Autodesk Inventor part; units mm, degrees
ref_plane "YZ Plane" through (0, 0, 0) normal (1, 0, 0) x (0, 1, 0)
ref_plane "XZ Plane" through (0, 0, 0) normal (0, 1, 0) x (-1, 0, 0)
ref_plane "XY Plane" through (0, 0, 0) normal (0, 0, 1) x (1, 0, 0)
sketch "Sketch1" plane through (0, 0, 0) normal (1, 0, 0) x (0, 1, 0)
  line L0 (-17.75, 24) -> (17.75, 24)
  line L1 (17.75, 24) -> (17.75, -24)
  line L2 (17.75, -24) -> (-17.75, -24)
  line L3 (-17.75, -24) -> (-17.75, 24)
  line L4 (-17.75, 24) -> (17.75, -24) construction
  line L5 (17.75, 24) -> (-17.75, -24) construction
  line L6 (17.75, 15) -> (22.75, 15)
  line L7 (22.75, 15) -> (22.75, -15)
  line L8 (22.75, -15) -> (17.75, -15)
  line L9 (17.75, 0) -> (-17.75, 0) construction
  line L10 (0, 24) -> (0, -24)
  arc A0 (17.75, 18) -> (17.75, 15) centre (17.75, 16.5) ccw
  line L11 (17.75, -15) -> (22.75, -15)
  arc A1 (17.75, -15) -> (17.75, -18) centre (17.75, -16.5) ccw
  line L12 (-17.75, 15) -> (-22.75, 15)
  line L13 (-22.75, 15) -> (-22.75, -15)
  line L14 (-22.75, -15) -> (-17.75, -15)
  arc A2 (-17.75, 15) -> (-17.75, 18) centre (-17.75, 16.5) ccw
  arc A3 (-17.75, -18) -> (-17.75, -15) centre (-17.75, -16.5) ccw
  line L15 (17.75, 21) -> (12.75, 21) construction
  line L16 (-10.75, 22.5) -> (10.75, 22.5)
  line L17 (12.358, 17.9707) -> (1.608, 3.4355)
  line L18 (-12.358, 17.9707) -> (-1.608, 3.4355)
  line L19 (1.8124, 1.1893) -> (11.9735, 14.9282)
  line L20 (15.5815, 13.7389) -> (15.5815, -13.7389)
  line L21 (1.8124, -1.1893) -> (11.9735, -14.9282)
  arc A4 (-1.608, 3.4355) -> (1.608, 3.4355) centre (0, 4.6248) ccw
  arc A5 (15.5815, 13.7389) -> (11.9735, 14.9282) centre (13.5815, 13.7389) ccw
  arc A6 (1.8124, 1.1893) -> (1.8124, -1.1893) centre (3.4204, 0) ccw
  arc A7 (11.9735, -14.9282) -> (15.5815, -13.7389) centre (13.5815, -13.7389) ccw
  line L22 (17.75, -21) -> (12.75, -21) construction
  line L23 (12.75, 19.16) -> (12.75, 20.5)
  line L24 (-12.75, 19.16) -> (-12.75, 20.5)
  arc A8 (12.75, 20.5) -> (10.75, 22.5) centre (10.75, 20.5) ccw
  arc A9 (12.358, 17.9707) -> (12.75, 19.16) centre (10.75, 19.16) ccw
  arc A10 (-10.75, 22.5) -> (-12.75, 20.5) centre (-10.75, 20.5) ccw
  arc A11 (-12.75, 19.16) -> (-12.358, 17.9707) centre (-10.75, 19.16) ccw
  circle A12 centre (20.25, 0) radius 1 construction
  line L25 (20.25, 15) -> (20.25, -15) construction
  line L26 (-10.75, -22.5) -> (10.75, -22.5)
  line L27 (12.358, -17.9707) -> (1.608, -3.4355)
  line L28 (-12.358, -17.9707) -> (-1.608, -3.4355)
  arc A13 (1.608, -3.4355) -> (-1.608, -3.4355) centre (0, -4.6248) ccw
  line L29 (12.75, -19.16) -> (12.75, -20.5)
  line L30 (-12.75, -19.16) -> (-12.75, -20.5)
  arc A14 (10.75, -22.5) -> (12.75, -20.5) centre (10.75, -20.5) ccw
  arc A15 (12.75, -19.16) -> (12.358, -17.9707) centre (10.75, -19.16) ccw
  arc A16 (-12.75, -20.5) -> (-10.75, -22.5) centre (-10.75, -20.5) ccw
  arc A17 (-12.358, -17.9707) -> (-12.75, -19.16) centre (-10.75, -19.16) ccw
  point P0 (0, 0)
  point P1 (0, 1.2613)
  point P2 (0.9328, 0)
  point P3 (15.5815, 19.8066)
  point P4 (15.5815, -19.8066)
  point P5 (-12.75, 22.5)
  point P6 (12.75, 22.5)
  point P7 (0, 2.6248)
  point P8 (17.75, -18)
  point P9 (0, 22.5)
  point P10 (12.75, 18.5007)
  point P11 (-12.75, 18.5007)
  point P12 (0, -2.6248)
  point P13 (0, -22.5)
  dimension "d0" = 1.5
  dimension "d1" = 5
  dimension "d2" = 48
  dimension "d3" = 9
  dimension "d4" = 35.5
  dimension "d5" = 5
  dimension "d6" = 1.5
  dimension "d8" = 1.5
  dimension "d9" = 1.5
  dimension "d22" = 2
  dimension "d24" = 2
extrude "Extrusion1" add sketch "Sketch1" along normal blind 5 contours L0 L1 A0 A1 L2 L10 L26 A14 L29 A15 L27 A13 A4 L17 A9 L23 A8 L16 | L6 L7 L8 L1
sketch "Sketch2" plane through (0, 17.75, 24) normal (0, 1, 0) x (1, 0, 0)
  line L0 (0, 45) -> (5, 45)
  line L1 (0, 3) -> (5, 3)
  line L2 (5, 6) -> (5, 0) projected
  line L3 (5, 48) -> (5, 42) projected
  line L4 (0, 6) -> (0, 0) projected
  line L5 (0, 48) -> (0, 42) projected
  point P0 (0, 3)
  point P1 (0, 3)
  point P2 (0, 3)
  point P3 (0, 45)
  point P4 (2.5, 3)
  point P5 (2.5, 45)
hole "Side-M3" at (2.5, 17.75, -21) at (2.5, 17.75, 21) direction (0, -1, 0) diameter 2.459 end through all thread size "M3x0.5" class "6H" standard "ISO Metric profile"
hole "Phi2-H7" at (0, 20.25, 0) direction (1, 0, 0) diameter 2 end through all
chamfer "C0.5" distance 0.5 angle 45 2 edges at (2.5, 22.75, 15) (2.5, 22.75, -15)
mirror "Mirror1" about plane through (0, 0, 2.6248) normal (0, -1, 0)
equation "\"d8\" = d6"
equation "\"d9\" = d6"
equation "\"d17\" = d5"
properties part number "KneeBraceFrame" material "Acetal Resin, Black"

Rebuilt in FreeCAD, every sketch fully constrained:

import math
import FreeCAD as App
import Part
import Sketcher
Q = App.Units.Quantity


def edges_at(feature, points):
    """Names of the edges that pass closest to the given points."""
    edges = feature.Shape.Edges
    near = lambda p: min(range(len(edges)), key=lambda i: edges[i].distToShape(Part.Vertex(*p))[0])
    return sorted({f"Edge{near(p) + 1}" for p in points})

doc = App.newDocument("Part")
body = doc.addObject("PartDesign::Body", "Body")

# Sketch on YZ plane
sketch1 = body.newObject("Sketcher::SketchObject", "Sketch")
sketch1.AttachmentSupport = (doc.getObject("YZ_Plane"), [""])
sketch1.MapMode = "FlatFace"
sketch1.addGeometry(Part.LineSegment(App.Vector(17.8, 24, 0), App.Vector(0, 24, 0)), False)
sketch1.addGeometry(Part.LineSegment(App.Vector(0, 24, 0), App.Vector(0, 22.5, 0)), False)
sketch1.addGeometry(Part.LineSegment(App.Vector(0, 22.5, 0), App.Vector(10.8, 22.5, 0)), False)
sketch1.addGeometry(Part.ArcOfCircle(Part.Circle(App.Vector(10.8, 20.5, 0), App.Vector(0, 0, 1), 2), math.radians(0), math.radians(90)), False)
sketch1.addGeometry(Part.LineSegment(App.Vector(12.8, 20.5, 0), App.Vector(12.8, 19.2, 0)), False)
sketch1.addGeometry(Part.ArcOfCircle(Part.Circle(App.Vector(10.8, 19.2, 0), App.Vector(0, 0, 1), 2), math.radians(-36), math.radians(0)), False)
sketch1.addGeometry(Part.LineSegment(App.Vector(12.4, 18, 0), App.Vector(1.6, 3.4, 0)), False)
sketch1.addGeometry(Part.ArcOfCircle(Part.Circle(App.Vector(0, 4.6, 0), App.Vector(0, 0, 1), 2), math.radians(-90), math.radians(-36)), False)
sketch1.addGeometry(Part.LineSegment(App.Vector(0, 2.6, 0), App.Vector(0, -2.6, 0)), False)
sketch1.addGeometry(Part.ArcOfCircle(Part.Circle(App.Vector(0, -4.6, 0), App.Vector(0, 0, 1), 2), math.radians(36), math.radians(90)), False)
sketch1.addGeometry(Part.LineSegment(App.Vector(1.6, -3.4, 0), App.Vector(12.4, -18, 0)), False)
sketch1.addGeometry(Part.ArcOfCircle(Part.Circle(App.Vector(10.8, -19.2, 0), App.Vector(0, 0, 1), 2), math.radians(0), math.radians(36)), False)
sketch1.addGeometry(Part.LineSegment(App.Vector(12.8, -19.2, 0), App.Vector(12.8, -20.5, 0)), False)
sketch1.addGeometry(Part.ArcOfCircle(Part.Circle(App.Vector(10.8, -20.5, 0), App.Vector(0, 0, 1), 2), math.radians(-90), math.radians(0)), False)
sketch1.addGeometry(Part.LineSegment(App.Vector(10.8, -22.5, 0), App.Vector(0, -22.5, 0)), False)
sketch1.addGeometry(Part.LineSegment(App.Vector(0, -22.5, 0), App.Vector(0, -24, 0)), False)
sketch1.addGeometry(Part.LineSegment(App.Vector(0, -24, 0), App.Vector(17.8, -24, 0)), False)
sketch1.addGeometry(Part.LineSegment(App.Vector(17.8, -24, 0), App.Vector(17.8, -18, 0)), False)
sketch1.addGeometry(Part.ArcOfCircle(Part.Circle(App.Vector(17.8, -16.5, 0), App.Vector(0, 0, 1), 1.5), math.radians(90), math.radians(270)), False)
sketch1.addGeometry(Part.LineSegment(App.Vector(17.8, -15, 0), App.Vector(22.8, -15, 0)), False)
sketch1.addGeometry(Part.LineSegment(App.Vector(22.8, -15, 0), App.Vector(22.8, 15, 0)), False)
sketch1.addGeometry(Part.LineSegment(App.Vector(22.8, 15, 0), App.Vector(17.8, 15, 0)), False)
sketch1.addGeometry(Part.ArcOfCircle(Part.Circle(App.Vector(17.8, 16.5, 0), App.Vector(0, 0, 1), 1.5), math.radians(90), math.radians(270)), False)
sketch1.addGeometry(Part.LineSegment(App.Vector(17.8, 18, 0), App.Vector(17.8, 24, 0)), False)
sketch1.addGeometry(Part.ArcOfCircle(Part.Circle(App.Vector(3.4, 0, 0), App.Vector(0, 0, 1), 2), math.radians(144), math.radians(216)), False)
sketch1.addGeometry(Part.LineSegment(App.Vector(1.8, 1.2, 0), App.Vector(12, 14.9, 0)), False)
sketch1.addGeometry(Part.ArcOfCircle(Part.Circle(App.Vector(13.6, 13.7, 0), App.Vector(0, 0, 1), 2), math.radians(0), math.radians(144)), False)
sketch1.addGeometry(Part.LineSegment(App.Vector(15.6, 13.7, 0), App.Vector(15.6, -13.7, 0)), False)
sketch1.addGeometry(Part.ArcOfCircle(Part.Circle(App.Vector(13.6, -13.7, 0), App.Vector(0, 0, 1), 2), math.radians(-144), math.radians(0)), False)
sketch1.addGeometry(Part.LineSegment(App.Vector(12, -14.9, 0), App.Vector(1.8, -1.2, 0)), False)
sketch1.addConstraint(Sketcher.Constraint("Coincident", 0, 2, 1, 1))
sketch1.addConstraint(Sketcher.Constraint("Coincident", 1, 2, 2, 1))
sketch1.addConstraint(Sketcher.Constraint("Tangent", 2, 2, 3, 2))
sketch1.addConstraint(Sketcher.Constraint("Tangent", 3, 1, 4, 1))
sketch1.addConstraint(Sketcher.Constraint("Tangent", 4, 2, 5, 2))
sketch1.addConstraint(Sketcher.Constraint("Tangent", 5, 1, 6, 1))
sketch1.addConstraint(Sketcher.Constraint("Tangent", 6, 2, 7, 2))
sketch1.addConstraint(Sketcher.Constraint("Coincident", 7, 1, 8, 1))
sketch1.addConstraint(Sketcher.Constraint("Coincident", 8, 2, 9, 2))
sketch1.addConstraint(Sketcher.Constraint("Tangent", 9, 1, 10, 1))
sketch1.addConstraint(Sketcher.Constraint("Tangent", 10, 2, 11, 2))
sketch1.addConstraint(Sketcher.Constraint("Tangent", 11, 1, 12, 1))
sketch1.addConstraint(Sketcher.Constraint("Tangent", 12, 2, 13, 2))
sketch1.addConstraint(Sketcher.Constraint("Tangent", 13, 1, 14, 1))
sketch1.addConstraint(Sketcher.Constraint("Coincident", 14, 2, 15, 1))
sketch1.addConstraint(Sketcher.Constraint("Coincident", 15, 2, 16, 1))
sketch1.addConstraint(Sketcher.Constraint("Coincident", 16, 2, 17, 1))
sketch1.addConstraint(Sketcher.Constraint("Coincident", 17, 2, 18, 2))
sketch1.addConstraint(Sketcher.Constraint("Tangent", 18, 1, 19, 1))
sketch1.addConstraint(Sketcher.Constraint("Coincident", 19, 2, 20, 1))
sketch1.addConstraint(Sketcher.Constraint("Coincident", 20, 2, 21, 1))
sketch1.addConstraint(Sketcher.Constraint("Tangent", 21, 2, 22, 2))
sketch1.addConstraint(Sketcher.Constraint("Coincident", 22, 1, 23, 1))
sketch1.addConstraint(Sketcher.Constraint("Coincident", 23, 2, 0, 1))
sketch1.addConstraint(Sketcher.Constraint("Tangent", 24, 1, 25, 1))
sketch1.addConstraint(Sketcher.Constraint("Tangent", 25, 2, 26, 2))
sketch1.addConstraint(Sketcher.Constraint("Tangent", 26, 1, 27, 1))
sketch1.addConstraint(Sketcher.Constraint("Tangent", 27, 2, 28, 2))
sketch1.addConstraint(Sketcher.Constraint("Tangent", 28, 1, 29, 1))
sketch1.addConstraint(Sketcher.Constraint("Tangent", 29, 2, 24, 2))
sketch1.addConstraint(Sketcher.Constraint("Horizontal", 0))
sketch1.addConstraint(Sketcher.Constraint("Vertical", 1))
sketch1.addConstraint(Sketcher.Constraint("Horizontal", 2))
sketch1.addConstraint(Sketcher.Constraint("Vertical", 4))
sketch1.addConstraint(Sketcher.Constraint("Vertical", 8))
sketch1.addConstraint(Sketcher.Constraint("Vertical", 12))
sketch1.addConstraint(Sketcher.Constraint("Horizontal", 14))
sketch1.addConstraint(Sketcher.Constraint("Vertical", 15))
sketch1.addConstraint(Sketcher.Constraint("Horizontal", 16))
sketch1.addConstraint(Sketcher.Constraint("Vertical", 17))
sketch1.addConstraint(Sketcher.Constraint("Horizontal", 19))
sketch1.addConstraint(Sketcher.Constraint("Vertical", 20))
sketch1.addConstraint(Sketcher.Constraint("Horizontal", 21))
sketch1.addConstraint(Sketcher.Constraint("Vertical", 23))
sketch1.addConstraint(Sketcher.Constraint("Vertical", 27))
sketch1.addConstraint(Sketcher.Constraint("Equal", 3, 5))
sketch1.addConstraint(Sketcher.Constraint("Equal", 5, 7))
sketch1.addConstraint(Sketcher.Constraint("Equal", 7, 9))
sketch1.addConstraint(Sketcher.Constraint("Equal", 9, 11))
sketch1.addConstraint(Sketcher.Constraint("Equal", 11, 13))
sketch1.addConstraint(Sketcher.Constraint("Equal", 18, 22))
sketch1.addConstraint(Sketcher.Constraint("Equal", 13, 24))
sketch1.addConstraint(Sketcher.Constraint("Equal", 24, 26))
sketch1.addConstraint(Sketcher.Constraint("Equal", 26, 28))
sketch1.addConstraint(Sketcher.Constraint("Symmetric", 7, 3, 9, 3, -1, 1))
sketch1.addConstraint(Sketcher.Constraint("Symmetric", 1, 2, 14, 2, -1, 1))
sketch1.addConstraint(Sketcher.Constraint("Symmetric", 5, 3, 11, 3, -1))
sketch1.addConstraint(Sketcher.Constraint("Symmetric", 18, 3, 22, 3, -1))
sketch1.addConstraint(Sketcher.Constraint("Symmetric", 0, 2, 15, 2, -1))
sketch1.addConstraint(Sketcher.Constraint("Symmetric", 25, 2, 28, 1, -1))
sketch1.addConstraint(Sketcher.Constraint("PointOnObject", 7, 3, -2))
sketch1.addConstraint(Sketcher.Constraint("PointOnObject", 7, 1, -2))
sketch1.addConstraint(Sketcher.Constraint("Parallel", 6, 25))
sketch1.addConstraint(Sketcher.Constraint("Vertical", 22, 3, 16, 2))
sketch1.addConstraint(Sketcher.Constraint("Vertical", 21, 2, 22, 1))
sketch1.addConstraint(Sketcher.Constraint("Radius", 3, Q("2 mm")))
sketch1.addConstraint(Sketcher.Constraint("Radius", 18, Q("1.5 mm")))
sketch1.addConstraint(Sketcher.Constraint("DistanceX", 19, 1, 19, 2, Q("5 mm")))
sketch1.addConstraint(Sketcher.Constraint("DistanceY", 1, 2, 1, 1, Q("1.5 mm")))
sketch1.addConstraint(Sketcher.Constraint("DistanceX", 3, 1, 22, 3, Q("5 mm")))
sketch1.addConstraint(Sketcher.Constraint("DistanceY", 16, 2, 19, 2, Q("9 mm")))
sketch1.addConstraint(Sketcher.Constraint("DistanceY", 20, 1, 20, 2, Q("30 mm")))
sketch1.addConstraint(Sketcher.Constraint("DistanceX", 0, 2, 0, 1, Q("17.75 mm")))
sketch1.addConstraint(Sketcher.Constraint("DistanceY", 4, 2, 4, 1, Q("1.34 mm")))
sketch1.addConstraint(Sketcher.Constraint("DistanceY", 8, 2, 8, 1, Q("5.2496 mm")))
sketch1.addConstraint(Sketcher.Constraint("DistanceY", 27, 2, 27, 1, Q("27.4778 mm")))
sketch1.addConstraint(Sketcher.Constraint("DistanceX", -1, 1, 24, 3, Q("3.4204 mm")))
pad1 = body.newObject("PartDesign::Pad", "Pad")
pad1.Profile = sketch1
pad1.Length = 5

# Sketch on XZ plane
sketch2 = body.newObject("Sketcher::SketchObject", "Sketch001")
sketch2.AttachmentSupport = (doc.getObject("XZ_Plane"), [""])
sketch2.MapMode = "FlatFace"
sketch2.AttachmentOffset = App.Placement(App.Vector(0, 0, -17.75), App.Rotation())
sketch2.addGeometry(Part.Circle(App.Vector(2.5, -21, 0), App.Vector(0, 0, 1), 1.2), False)
sketch2.addGeometry(Part.Circle(App.Vector(2.5, 21, 0), App.Vector(0, 0, 1), 1.2), False)
sketch2.addConstraint(Sketcher.Constraint("Equal", 0, 1))
sketch2.addConstraint(Sketcher.Constraint("Symmetric", 0, 3, 1, 3, -1))
sketch2.addConstraint(Sketcher.Constraint("Diameter", 0, Q("2.459 mm")))
sketch2.addConstraint(Sketcher.Constraint("DistanceY", 0, 3, -1, 1, Q("21 mm")))
sketch2.addConstraint(Sketcher.Constraint("DistanceX", -1, 1, 0, 3, Q("2.5 mm")))
doc.recompute()
hole = body.newObject("PartDesign::Hole", "Hole")
hole.Profile = sketch2
hole.ThreadType = "None"
hole.Diameter = 2.459
hole.DepthType = "ThroughAll"
hole.Reversed = True

# Sketch on YZ plane
sketch3 = body.newObject("Sketcher::SketchObject", "Sketch002")
sketch3.AttachmentSupport = (doc.getObject("YZ_Plane"), [""])
sketch3.MapMode = "FlatFace"
sketch3.addGeometry(Part.Circle(App.Vector(20.2, 0, 0), App.Vector(0, 0, 1), 1), False)
sketch3.addConstraint(Sketcher.Constraint("PointOnObject", 0, 3, -1))
sketch3.addConstraint(Sketcher.Constraint("Diameter", 0, Q("2 mm")))
sketch3.addConstraint(Sketcher.Constraint("DistanceX", -1, 1, 0, 3, Q("20.25 mm")))
doc.recompute()
hole2 = body.newObject("PartDesign::Hole", "Hole001")
hole2.Profile = sketch3
hole2.ThreadType = "None"
hole2.Diameter = 2
hole2.DepthType = "ThroughAll"
hole2.Reversed = True
doc.recompute()

chamfer = body.newObject("PartDesign::Chamfer", "Chamfer")
chamfer.Base = (hole2, edges_at(hole2, [(2.5, 22.75, 15), (2.5, 22.75, -15)]))
chamfer.Size = 0.5
doc.recompute()

mirrored = body.newObject("PartDesign::Mirrored", "Mirrored")
mirrored.TransformMode = "Transform body"
mirrored.MirrorPlane = (doc.getObject("XZ_Plane"), [""])
body.Tip = mirrored

doc.recompute()
